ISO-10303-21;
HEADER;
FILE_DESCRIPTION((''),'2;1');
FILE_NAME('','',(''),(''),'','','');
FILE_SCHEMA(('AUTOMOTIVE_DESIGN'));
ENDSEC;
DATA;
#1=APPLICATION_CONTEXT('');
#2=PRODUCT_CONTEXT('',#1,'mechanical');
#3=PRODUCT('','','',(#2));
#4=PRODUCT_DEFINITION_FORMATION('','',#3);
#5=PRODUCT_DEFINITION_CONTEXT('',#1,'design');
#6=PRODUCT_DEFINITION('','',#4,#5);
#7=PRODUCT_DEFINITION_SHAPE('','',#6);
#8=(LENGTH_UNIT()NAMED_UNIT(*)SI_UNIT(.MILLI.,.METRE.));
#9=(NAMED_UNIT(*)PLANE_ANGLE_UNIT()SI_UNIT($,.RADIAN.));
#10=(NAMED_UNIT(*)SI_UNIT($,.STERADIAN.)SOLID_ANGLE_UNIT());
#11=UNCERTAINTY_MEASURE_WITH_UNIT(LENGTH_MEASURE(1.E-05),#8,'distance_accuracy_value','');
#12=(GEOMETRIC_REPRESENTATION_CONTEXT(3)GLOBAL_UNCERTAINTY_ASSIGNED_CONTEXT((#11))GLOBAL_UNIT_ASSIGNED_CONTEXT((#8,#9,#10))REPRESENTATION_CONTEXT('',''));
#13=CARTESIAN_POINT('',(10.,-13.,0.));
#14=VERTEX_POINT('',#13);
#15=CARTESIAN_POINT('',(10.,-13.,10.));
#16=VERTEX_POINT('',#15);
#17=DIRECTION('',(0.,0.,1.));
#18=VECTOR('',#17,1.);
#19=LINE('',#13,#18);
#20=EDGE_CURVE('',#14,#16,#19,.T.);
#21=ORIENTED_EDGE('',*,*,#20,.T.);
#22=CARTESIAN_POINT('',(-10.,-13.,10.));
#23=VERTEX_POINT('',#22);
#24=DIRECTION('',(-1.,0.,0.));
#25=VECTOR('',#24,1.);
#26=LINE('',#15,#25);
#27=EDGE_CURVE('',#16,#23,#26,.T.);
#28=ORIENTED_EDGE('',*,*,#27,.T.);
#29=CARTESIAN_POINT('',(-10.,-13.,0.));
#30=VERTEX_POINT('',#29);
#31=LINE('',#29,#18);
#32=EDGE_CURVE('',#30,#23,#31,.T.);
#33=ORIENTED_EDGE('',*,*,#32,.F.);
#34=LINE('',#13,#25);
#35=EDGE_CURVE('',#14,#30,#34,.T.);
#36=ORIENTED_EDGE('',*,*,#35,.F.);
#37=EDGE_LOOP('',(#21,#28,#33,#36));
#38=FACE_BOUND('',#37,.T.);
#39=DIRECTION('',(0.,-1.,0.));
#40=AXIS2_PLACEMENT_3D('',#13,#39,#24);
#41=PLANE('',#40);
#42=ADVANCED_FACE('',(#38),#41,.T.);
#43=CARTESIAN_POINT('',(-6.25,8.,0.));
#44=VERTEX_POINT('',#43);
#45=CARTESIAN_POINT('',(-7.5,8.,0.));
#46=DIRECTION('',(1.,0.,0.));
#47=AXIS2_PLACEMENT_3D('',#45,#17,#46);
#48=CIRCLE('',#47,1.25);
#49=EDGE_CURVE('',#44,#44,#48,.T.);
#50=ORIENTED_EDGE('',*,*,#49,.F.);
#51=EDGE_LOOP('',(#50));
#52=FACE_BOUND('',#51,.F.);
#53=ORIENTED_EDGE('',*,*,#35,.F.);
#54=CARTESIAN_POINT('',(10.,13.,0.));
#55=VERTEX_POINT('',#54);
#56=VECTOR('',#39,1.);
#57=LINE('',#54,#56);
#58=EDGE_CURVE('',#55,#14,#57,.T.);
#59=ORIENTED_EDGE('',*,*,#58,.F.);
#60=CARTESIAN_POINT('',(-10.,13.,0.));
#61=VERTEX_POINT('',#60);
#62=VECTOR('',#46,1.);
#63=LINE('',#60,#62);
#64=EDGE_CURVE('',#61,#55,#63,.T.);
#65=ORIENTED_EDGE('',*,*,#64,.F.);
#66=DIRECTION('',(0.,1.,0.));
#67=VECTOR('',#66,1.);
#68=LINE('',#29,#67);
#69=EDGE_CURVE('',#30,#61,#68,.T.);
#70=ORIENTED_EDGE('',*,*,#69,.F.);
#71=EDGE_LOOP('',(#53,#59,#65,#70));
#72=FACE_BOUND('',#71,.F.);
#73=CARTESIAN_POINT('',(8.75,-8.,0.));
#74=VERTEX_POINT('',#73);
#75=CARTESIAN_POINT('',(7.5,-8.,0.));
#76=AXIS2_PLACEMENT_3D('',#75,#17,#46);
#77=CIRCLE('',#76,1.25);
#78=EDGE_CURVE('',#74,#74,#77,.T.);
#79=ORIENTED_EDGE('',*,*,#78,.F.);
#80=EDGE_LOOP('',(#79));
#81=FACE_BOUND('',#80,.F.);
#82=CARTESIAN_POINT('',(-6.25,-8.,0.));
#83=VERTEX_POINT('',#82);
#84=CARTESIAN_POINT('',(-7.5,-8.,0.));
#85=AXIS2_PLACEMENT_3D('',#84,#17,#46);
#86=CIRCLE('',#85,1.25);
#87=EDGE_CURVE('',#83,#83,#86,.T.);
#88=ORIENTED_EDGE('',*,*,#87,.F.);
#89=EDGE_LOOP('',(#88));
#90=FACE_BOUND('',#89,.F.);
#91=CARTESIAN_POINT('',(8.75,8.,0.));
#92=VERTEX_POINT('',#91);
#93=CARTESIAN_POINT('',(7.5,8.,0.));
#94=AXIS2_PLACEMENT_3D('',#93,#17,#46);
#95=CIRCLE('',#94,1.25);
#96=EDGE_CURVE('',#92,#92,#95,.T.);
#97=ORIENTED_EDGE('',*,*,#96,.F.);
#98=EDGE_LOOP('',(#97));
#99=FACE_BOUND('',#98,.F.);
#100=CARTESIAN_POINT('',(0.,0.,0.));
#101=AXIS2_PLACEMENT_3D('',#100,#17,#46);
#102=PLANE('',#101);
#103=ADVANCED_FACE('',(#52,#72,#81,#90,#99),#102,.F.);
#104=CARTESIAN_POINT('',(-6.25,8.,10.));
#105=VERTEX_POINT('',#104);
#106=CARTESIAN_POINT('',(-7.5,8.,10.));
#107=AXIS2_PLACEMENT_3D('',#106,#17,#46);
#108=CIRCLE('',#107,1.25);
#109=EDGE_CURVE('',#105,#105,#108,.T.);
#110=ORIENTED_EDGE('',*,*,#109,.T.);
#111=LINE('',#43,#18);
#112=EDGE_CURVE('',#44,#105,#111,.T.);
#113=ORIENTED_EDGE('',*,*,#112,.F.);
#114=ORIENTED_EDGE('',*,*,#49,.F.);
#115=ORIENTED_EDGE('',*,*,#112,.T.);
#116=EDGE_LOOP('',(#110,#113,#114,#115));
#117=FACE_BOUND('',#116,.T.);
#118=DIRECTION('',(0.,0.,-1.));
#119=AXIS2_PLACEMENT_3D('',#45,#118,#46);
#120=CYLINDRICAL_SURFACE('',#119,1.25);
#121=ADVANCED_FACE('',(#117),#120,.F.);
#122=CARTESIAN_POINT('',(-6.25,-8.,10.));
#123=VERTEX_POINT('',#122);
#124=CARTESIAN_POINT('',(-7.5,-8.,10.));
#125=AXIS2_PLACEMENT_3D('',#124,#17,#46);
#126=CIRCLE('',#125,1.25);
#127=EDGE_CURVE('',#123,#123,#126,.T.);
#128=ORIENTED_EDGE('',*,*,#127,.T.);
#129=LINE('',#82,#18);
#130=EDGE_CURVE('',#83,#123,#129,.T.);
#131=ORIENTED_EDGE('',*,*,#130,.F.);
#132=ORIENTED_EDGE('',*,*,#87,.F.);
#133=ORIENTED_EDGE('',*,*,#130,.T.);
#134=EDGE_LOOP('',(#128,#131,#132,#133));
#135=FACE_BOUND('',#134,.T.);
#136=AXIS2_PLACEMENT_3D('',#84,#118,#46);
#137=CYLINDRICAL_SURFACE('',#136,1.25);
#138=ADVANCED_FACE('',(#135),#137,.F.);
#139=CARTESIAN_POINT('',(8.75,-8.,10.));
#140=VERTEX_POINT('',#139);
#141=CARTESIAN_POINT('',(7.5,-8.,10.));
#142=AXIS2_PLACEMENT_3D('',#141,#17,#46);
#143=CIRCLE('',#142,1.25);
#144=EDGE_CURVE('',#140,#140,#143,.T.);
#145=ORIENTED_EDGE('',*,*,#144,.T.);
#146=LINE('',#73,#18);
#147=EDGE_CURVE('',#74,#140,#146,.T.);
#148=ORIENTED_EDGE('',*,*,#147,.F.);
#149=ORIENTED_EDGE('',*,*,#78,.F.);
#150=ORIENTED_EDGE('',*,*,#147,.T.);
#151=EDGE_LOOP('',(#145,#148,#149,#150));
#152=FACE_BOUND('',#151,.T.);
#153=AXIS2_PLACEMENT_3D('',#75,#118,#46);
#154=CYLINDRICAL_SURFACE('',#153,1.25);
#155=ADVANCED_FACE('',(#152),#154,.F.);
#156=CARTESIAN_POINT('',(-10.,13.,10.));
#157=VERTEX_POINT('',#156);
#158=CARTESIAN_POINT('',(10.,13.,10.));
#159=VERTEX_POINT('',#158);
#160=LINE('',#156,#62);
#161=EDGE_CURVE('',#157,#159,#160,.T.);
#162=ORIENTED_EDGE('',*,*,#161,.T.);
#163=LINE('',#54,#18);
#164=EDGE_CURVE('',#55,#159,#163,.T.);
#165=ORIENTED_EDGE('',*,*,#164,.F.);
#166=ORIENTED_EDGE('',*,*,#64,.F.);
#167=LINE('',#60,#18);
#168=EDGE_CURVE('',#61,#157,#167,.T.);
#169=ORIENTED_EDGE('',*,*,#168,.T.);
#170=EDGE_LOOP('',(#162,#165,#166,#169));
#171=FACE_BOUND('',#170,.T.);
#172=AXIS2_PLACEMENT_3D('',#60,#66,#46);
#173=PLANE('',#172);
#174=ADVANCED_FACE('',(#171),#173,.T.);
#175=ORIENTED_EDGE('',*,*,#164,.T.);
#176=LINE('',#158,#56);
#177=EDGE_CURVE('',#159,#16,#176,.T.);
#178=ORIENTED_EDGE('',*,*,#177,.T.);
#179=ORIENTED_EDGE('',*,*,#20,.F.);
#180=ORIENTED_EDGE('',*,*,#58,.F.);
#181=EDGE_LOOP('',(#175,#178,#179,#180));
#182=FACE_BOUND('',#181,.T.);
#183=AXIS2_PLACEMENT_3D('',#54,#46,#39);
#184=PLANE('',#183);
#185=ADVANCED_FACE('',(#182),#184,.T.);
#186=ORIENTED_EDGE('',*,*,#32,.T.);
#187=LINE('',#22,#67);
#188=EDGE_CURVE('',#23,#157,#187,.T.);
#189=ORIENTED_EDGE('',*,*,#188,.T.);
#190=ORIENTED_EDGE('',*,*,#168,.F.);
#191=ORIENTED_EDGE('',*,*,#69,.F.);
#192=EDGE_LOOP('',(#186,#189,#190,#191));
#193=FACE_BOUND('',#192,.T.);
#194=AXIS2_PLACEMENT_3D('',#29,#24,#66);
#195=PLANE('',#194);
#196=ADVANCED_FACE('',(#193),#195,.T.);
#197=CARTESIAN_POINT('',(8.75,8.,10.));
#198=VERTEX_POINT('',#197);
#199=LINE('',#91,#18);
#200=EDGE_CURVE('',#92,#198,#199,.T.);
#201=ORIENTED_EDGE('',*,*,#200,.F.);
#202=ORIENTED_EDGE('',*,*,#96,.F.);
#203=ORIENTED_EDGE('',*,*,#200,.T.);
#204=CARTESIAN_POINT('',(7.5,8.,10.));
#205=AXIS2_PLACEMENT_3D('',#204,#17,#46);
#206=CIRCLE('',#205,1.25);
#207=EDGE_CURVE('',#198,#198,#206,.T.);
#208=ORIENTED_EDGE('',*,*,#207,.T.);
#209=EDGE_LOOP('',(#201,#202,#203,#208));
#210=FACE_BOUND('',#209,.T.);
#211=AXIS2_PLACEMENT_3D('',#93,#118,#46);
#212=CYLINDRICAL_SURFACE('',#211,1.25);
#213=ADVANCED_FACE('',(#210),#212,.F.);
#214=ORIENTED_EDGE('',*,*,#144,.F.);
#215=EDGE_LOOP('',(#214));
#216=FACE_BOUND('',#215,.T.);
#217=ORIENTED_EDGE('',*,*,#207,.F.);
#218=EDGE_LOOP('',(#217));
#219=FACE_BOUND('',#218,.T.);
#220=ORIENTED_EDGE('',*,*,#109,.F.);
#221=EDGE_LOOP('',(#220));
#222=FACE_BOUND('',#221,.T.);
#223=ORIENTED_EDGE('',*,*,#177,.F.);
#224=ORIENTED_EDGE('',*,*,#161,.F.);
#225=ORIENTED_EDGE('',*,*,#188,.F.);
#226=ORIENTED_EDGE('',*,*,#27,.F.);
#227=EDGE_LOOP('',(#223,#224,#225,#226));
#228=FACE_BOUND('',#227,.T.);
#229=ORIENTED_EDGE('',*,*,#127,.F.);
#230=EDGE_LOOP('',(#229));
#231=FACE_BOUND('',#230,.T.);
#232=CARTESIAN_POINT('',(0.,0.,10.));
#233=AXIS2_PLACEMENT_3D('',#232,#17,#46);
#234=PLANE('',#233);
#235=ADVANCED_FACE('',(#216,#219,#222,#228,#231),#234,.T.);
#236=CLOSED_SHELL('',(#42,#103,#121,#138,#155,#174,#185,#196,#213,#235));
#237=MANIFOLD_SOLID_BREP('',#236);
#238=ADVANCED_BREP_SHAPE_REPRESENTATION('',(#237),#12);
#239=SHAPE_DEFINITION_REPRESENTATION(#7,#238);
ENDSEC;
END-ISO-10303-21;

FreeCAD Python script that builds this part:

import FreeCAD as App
import Part
import Sketcher
Q = App.Units.Quantity

doc = App.newDocument("Part")
body = doc.addObject("PartDesign::Body", "Body")

sketch1 = body.newObject("Sketcher::SketchObject", "Sketch")
sketch1.AttachmentSupport = (doc.getObject("XY_Plane"), [""])
sketch1.MapMode = "FlatFace"
sketch1.addGeometry([
    Part.LineSegment(App.Vector(10, 13, 0), App.Vector(-10, 13, 0)),
    Part.LineSegment(App.Vector(-10, 13, 0), App.Vector(-10, -13, 0)),
    Part.LineSegment(App.Vector(-10, -13, 0), App.Vector(10, -13, 0)),
    Part.LineSegment(App.Vector(10, -13, 0), App.Vector(10, 13, 0)),
    Part.Circle(App.Vector(-7.5, -8, 0), App.Vector(0, 0, 1), 1.2),
    Part.Circle(App.Vector(7.5, -8, 0), App.Vector(0, 0, 1), 1.2),
    Part.Circle(App.Vector(-7.5, 8, 0), App.Vector(0, 0, 1), 1.2),
    Part.Circle(App.Vector(7.5, 8, 0), App.Vector(0, 0, 1), 1.2),
], False)
sketch1.addConstraint([
    Sketcher.Constraint("Coincident", 0, 2, 1, 1),
    Sketcher.Constraint("Coincident", 1, 2, 2, 1),
    Sketcher.Constraint("Coincident", 2, 2, 3, 1),
    Sketcher.Constraint("Coincident", 3, 2, 0, 1),
    Sketcher.Constraint("Horizontal", 0),
    Sketcher.Constraint("Vertical", 1),
    Sketcher.Constraint("Horizontal", 2),
    Sketcher.Constraint("Vertical", 3),
    Sketcher.Constraint("Equal", 4, 5),
    Sketcher.Constraint("Equal", 5, 6),
    Sketcher.Constraint("Equal", 6, 7),
    Sketcher.Constraint("Symmetric", 5, 3, 6, 3, -1, 1),
    Sketcher.Constraint("Symmetric", 4, 3, 7, 3, -1, 1),
    Sketcher.Constraint("Symmetric", 0, 2, 2, 2, -1, 1),
    Sketcher.Constraint("Symmetric", 4, 3, 5, 3, -2),
    Sketcher.Constraint("Diameter", 4, Q("2.5 mm")),
    Sketcher.Constraint("DistanceX", 0, 2, 0, 1, Q("20 mm")),
    Sketcher.Constraint("DistanceY", 1, 2, 1, 1, Q("26 mm")),
    Sketcher.Constraint("DistanceY", 4, 3, -1, 1, Q("8 mm")),
    Sketcher.Constraint("DistanceX", 4, 3, 5, 3, Q("15 mm")),
])
pad1 = body.newObject("PartDesign::Pad", "Pad")
pad1.Profile = sketch1
pad1.Length = 10

doc.recompute()
